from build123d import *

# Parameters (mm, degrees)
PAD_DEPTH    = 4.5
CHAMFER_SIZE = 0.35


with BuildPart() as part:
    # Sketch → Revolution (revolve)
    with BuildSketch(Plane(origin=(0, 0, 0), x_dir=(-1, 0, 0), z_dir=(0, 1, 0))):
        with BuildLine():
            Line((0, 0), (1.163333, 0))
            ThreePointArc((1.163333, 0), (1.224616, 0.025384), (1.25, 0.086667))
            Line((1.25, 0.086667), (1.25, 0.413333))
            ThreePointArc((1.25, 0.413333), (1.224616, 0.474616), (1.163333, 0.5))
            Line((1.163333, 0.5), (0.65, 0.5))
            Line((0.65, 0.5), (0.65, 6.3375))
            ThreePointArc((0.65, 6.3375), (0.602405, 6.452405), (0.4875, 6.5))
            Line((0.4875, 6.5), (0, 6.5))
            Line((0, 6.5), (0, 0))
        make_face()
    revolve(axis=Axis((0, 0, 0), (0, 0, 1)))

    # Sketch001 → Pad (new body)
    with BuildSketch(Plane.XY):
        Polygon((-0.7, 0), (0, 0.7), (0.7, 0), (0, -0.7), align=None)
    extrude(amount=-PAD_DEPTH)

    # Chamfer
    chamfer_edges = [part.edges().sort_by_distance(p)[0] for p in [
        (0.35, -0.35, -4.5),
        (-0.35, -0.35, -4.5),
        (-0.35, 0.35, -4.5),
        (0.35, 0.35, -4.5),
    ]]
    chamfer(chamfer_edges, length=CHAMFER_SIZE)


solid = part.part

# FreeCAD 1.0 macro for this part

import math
import FreeCAD as App
import Part
import Sketcher


def edges_at(feature, points):
    """Names of the edges that pass closest to the given points."""
    edges = feature.Shape.Edges
    near = lambda p: min(range(len(edges)), key=lambda i: edges[i].distToShape(Part.Vertex(*p))[0])
    return sorted({f"Edge{near(p) + 1}" for p in points})

doc = App.newDocument("Part")
body = doc.addObject("PartDesign::Body", "Body")

sketch1 = body.newObject("Sketcher::SketchObject", "Sketch")
sketch1.AttachmentSupport = (doc.getObject("XZ_Plane"), [""])
sketch1.MapMode = "FlatFace"
sketch1.addGeometry(Part.LineSegment(App.Vector(0, 0, 0), App.Vector(-1.16, 0, 0)), False)
sketch1.addGeometry(Part.ArcOfCircle(Part.Circle(App.Vector(-1.16, 0.09, 0), App.Vector(0, 0, 1), 0.09), math.radians(180), math.radians(270)), False)
sketch1.addGeometry(Part.LineSegment(App.Vector(-1.25, 0.09, 0), App.Vector(-1.25, 0.41, 0)), False)
sketch1.addGeometry(Part.ArcOfCircle(Part.Circle(App.Vector(-1.16, 0.41, 0), App.Vector(0, 0, 1), 0.09), math.radians(90), math.radians(180)), False)
sketch1.addGeometry(Part.LineSegment(App.Vector(-1.16, 0.5, 0), App.Vector(-0.65, 0.5, 0)), False)
sketch1.addGeometry(Part.LineSegment(App.Vector(-0.65, 0.5, 0), App.Vector(-0.65, 6.34, 0)), False)
sketch1.addGeometry(Part.ArcOfCircle(Part.Circle(App.Vector(-0.49, 6.34, 0), App.Vector(0, 0, 1), 0.16), math.radians(90), math.radians(180)), False)
sketch1.addGeometry(Part.LineSegment(App.Vector(-0.49, 6.5, 0), App.Vector(0, 6.5, 0)), False)
sketch1.addGeometry(Part.LineSegment(App.Vector(0, 6.5, 0), App.Vector(0, 0, 0)), False)
sketch1.addConstraint(Sketcher.Constraint("Coincident", 0, 2, 1, 2))
sketch1.addConstraint(Sketcher.Constraint("Coincident", 1, 1, 2, 1))
sketch1.addConstraint(Sketcher.Constraint("Coincident", 2, 2, 3, 2))
sketch1.addConstraint(Sketcher.Constraint("Coincident", 3, 1, 4, 1))
sketch1.addConstraint(Sketcher.Constraint("Coincident", 4, 2, 5, 1))
sketch1.addConstraint(Sketcher.Constraint("Coincident", 5, 2, 6, 2))
sketch1.addConstraint(Sketcher.Constraint("Coincident", 6, 1, 7, 1))
sketch1.addConstraint(Sketcher.Constraint("Coincident", 7, 2, 8, 1))
sketch1.addConstraint(Sketcher.Constraint("Coincident", 8, 2, 0, 1))
sketch1.addConstraint(Sketcher.Constraint("Horizontal", 0))
sketch1.addConstraint(Sketcher.Constraint("Vertical", 2))
sketch1.addConstraint(Sketcher.Constraint("Horizontal", 4))
sketch1.addConstraint(Sketcher.Constraint("Vertical", 5))
sketch1.addConstraint(Sketcher.Constraint("Horizontal", 7))
sketch1.addConstraint(Sketcher.Constraint("Vertical", 8))
sketch1.addConstraint(Sketcher.Constraint("Coincident", 8, 2, -1, 1))
sketch1.addConstraint(Sketcher.Constraint("Equal", 1, 3))
sketch1.addConstraint(Sketcher.Constraint("Horizontal", 3, 3, 2, 2))
sketch1.addConstraint(Sketcher.Constraint("Horizontal", 6, 3, 5, 2))
sketch1.addConstraint(Sketcher.Constraint("Vertical", 3, 3, 0, 2))
sketch1.addConstraint(Sketcher.Constraint("Vertical", 0, 2, 3, 1))
sketch1.addConstraint(Sketcher.Constraint("DistanceY", 8, 2, 8, 1, 6.5))
sketch1.addConstraint(Sketcher.Constraint("DistanceY", 4, 2, 6, 1, 6.0))
sketch1.addConstraint(Sketcher.Constraint("Radius", 6, 0.162499))
sketch1.addConstraint(Sketcher.Constraint("DistanceX", 2, 2, 4, 2, 0.6))
sketch1.addConstraint(Sketcher.Constraint("DistanceX", 1, 1, -1, 1, 1.25))
sketch1.addConstraint(Sketcher.Constraint("DistanceX", 7, 1, 7, 2, 0.4875))
sketch1.addConstraint(Sketcher.Constraint("Radius", 1, 0.086666))
sketch1.addConstraint(Sketcher.Constraint("DistanceY", 2, 1, 2, 2, 0.326666))
revolution = body.newObject("PartDesign::Revolution", "Revolution")
revolution.Profile = sketch1
revolution.ReferenceAxis = (sketch1, ["V_Axis"])
revolution.Angle = 360

sketch2 = body.newObject("Sketcher::SketchObject", "Sketch001")
sketch2.AttachmentSupport = (doc.getObject("XY_Plane"), [""])
sketch2.MapMode = "FlatFace"
sketch2.addGeometry(Part.LineSegment(App.Vector(0, 0.7, 0), App.Vector(-0.7, 0, 0)), False)
sketch2.addGeometry(Part.LineSegment(App.Vector(-0.7, 0, 0), App.Vector(0, -0.7, 0)), False)
sketch2.addGeometry(Part.LineSegment(App.Vector(0, -0.7, 0), App.Vector(0.7, 0, 0)), False)
sketch2.addGeometry(Part.LineSegment(App.Vector(0.7, 0, 0), App.Vector(0, 0.7, 0)), False)
sketch2.addConstraint(Sketcher.Constraint("Coincident", 0, 2, 1, 1))
sketch2.addConstraint(Sketcher.Constraint("Coincident", 1, 2, 2, 1))
sketch2.addConstraint(Sketcher.Constraint("Coincident", 2, 2, 3, 1))
sketch2.addConstraint(Sketcher.Constraint("Coincident", 3, 2, 0, 1))
sketch2.addConstraint(Sketcher.Constraint("Symmetric", 0, 2, 2, 2, -1, 1))
sketch2.addConstraint(Sketcher.Constraint("Symmetric", 1, 2, 3, 2, -1, 1))
sketch2.addConstraint(Sketcher.Constraint("PointOnObject", 0, 2, -1))
sketch2.addConstraint(Sketcher.Constraint("PointOnObject", 1, 2, -2))
sketch2.addConstraint(Sketcher.Constraint("Perpendicular", 0, 1))
sketch2.addConstraint(Sketcher.Constraint("DistanceX", 0, 2, -1, 1, 0.7))
pad1 = body.newObject("PartDesign::Pad", "Pad")
pad1.Profile = sketch2
pad1.Length = 4.5
pad1.Reversed = True
doc.recompute()

chamfer = body.newObject("PartDesign::Chamfer", "Chamfer")
chamfer.Base = (pad1, edges_at(pad1, [
    (0.35, -0.35, -4.5),
    (-0.35, -0.35, -4.5),
    (-0.35, 0.35, -4.5),
    (0.35, 0.35, -4.5),
]))
chamfer.Size = 0.35

doc.recompute()
